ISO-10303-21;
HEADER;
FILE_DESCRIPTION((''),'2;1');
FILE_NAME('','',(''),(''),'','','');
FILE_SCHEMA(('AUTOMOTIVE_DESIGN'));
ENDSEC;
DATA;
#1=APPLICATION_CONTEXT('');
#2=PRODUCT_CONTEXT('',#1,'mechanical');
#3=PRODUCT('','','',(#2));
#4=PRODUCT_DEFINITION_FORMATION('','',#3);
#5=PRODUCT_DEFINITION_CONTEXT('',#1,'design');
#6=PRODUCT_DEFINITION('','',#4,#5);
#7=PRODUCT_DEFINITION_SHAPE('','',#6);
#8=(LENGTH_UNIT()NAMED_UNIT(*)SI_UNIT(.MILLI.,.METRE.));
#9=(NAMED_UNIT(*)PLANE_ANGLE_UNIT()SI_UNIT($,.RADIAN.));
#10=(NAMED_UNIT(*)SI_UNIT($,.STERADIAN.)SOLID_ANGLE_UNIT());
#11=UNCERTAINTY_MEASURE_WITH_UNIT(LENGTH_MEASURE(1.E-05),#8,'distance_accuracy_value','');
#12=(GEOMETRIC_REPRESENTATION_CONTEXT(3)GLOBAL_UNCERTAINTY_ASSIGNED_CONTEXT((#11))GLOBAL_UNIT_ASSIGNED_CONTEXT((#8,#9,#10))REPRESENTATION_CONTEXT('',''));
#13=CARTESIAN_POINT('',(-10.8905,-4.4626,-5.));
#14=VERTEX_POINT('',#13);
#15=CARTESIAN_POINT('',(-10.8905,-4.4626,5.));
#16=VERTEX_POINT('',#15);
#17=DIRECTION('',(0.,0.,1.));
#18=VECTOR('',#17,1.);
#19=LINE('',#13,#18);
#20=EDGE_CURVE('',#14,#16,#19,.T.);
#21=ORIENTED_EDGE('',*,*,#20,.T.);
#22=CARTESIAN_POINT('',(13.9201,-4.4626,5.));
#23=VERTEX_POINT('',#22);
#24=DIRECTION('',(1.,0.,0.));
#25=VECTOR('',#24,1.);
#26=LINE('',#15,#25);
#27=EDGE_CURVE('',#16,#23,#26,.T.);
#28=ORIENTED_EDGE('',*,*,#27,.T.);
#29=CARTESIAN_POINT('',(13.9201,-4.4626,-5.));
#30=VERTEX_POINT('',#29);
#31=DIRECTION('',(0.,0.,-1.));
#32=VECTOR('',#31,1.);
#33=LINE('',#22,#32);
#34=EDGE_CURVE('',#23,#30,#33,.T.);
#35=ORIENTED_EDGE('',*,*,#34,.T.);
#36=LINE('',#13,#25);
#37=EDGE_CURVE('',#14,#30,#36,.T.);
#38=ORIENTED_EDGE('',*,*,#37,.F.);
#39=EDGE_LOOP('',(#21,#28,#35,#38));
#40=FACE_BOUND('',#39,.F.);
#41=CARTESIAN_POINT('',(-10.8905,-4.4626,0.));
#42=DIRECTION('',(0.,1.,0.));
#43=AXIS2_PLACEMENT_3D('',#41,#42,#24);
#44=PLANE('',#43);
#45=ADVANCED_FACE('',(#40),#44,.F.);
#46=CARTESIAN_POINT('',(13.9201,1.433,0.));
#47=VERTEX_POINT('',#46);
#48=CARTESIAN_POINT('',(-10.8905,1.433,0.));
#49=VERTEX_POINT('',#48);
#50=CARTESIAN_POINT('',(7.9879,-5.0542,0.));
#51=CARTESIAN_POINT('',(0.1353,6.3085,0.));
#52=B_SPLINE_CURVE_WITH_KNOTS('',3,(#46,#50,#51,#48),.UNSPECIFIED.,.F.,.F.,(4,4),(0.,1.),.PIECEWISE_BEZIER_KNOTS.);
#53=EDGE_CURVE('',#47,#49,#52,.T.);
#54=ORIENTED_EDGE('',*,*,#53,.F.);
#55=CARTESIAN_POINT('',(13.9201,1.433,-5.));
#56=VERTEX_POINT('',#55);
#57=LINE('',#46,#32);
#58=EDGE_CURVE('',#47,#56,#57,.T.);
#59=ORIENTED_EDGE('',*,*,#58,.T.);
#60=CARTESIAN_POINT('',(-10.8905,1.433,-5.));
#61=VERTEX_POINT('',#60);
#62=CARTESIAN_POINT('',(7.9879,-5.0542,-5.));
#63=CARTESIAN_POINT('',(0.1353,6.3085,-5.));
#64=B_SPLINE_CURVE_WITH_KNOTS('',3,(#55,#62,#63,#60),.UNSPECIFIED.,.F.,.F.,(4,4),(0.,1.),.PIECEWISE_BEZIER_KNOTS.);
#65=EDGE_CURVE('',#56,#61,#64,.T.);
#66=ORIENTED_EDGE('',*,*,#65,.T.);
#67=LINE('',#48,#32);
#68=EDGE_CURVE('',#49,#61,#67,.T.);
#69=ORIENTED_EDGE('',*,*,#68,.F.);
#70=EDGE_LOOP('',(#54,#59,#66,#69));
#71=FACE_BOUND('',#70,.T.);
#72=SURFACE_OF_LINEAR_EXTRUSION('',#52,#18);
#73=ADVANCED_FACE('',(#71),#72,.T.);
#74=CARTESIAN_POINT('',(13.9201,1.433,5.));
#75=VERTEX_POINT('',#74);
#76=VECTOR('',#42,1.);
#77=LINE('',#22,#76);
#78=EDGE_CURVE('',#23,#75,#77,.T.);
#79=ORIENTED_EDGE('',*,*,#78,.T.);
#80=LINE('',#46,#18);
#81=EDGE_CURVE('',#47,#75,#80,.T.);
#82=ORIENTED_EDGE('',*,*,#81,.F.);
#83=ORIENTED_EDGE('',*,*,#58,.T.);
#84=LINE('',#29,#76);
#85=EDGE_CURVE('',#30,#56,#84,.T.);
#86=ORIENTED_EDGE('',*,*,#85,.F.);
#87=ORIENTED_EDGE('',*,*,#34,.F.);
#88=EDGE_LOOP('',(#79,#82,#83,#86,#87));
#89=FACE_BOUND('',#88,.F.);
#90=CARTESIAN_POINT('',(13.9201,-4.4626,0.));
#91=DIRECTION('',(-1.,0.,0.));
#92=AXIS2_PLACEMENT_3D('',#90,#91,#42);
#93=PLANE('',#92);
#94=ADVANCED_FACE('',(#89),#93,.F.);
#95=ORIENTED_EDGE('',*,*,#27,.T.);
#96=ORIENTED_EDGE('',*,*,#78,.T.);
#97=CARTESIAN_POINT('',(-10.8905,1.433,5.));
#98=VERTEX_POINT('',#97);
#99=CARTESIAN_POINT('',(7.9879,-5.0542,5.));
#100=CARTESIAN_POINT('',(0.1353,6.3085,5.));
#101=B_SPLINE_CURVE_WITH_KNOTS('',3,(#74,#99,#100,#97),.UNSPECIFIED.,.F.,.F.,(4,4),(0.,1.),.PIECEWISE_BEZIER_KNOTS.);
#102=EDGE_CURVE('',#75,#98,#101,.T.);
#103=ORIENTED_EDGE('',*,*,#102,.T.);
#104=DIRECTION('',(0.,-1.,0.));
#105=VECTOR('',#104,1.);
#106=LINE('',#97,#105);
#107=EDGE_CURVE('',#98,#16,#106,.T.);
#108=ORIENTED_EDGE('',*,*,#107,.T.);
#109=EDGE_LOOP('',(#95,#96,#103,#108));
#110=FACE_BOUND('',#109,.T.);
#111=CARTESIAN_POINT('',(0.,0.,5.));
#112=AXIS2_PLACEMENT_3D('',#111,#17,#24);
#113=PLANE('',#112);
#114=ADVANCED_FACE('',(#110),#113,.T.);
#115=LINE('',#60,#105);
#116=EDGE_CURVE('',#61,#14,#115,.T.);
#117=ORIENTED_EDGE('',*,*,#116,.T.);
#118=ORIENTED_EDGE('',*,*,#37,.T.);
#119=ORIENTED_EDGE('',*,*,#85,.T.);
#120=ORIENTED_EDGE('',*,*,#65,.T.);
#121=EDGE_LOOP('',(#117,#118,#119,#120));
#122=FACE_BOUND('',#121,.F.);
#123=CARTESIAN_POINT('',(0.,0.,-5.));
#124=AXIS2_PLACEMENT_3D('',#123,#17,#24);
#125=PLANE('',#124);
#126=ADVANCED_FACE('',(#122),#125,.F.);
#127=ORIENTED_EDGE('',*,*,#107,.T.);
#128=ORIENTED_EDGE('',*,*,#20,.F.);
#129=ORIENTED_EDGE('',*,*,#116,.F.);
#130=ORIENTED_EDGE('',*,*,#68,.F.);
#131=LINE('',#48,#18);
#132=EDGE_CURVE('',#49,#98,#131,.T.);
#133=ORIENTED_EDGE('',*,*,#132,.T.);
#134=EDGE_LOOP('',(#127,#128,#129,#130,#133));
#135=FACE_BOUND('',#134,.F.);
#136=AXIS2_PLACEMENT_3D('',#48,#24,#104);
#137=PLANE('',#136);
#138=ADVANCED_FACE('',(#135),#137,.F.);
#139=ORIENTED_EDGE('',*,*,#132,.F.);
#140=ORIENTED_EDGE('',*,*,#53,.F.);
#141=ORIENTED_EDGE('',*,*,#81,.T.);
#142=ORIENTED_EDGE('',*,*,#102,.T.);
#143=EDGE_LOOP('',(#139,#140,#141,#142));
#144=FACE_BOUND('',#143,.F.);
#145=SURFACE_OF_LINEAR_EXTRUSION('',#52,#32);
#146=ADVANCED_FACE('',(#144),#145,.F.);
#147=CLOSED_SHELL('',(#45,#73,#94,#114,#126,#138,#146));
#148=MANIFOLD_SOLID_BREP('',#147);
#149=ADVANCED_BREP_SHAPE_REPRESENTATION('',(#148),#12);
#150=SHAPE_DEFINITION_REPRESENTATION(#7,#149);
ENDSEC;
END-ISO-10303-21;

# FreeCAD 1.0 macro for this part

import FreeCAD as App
import Part
import Sketcher

V = App.Vector

doc = App.newDocument("Part")
body = doc.addObject("PartDesign::Body", "Body")

sketch1 = doc.addObject("Sketcher::SketchObject", "Sketch")
body.addObject(sketch1)
sketch1.AttachmentSupport = (doc.XY_Plane, [""])
sketch1.MapMode = "FlatFace"
sketch1.addGeometry([
    Part.BSplineCurve([V(13.9201, 1.433, 0), V(7.9879, -5.0542, 0), V(0.1353, 6.3085, 0), V(-10.8905, 1.433, 0)], [4, 4], [0, 1], False, 3, [1, 1, 1, 1], False),
    Part.LineSegment(V(-10.8905, 1.433, 0), V(-10.8905, -4.4626, 0)),
    Part.LineSegment(V(-10.8905, -4.4626, 0), V(13.9201, -4.4626, 0)),
    Part.LineSegment(V(13.9201, -4.4626, 0), V(13.9201, 1.433, 0)),
], False)
sketch1.addConstraint([
    Sketcher.Constraint("Block", 0),
    Sketcher.Constraint("Coincident", 0, 2, 1, 1),
    Sketcher.Constraint("Coincident", 1, 2, 2, 1),
    Sketcher.Constraint("Coincident", 2, 2, 3, 1),
    Sketcher.Constraint("Coincident", 3, 2, 0, 1),
    Sketcher.Constraint("Vertical", 1),
    Sketcher.Constraint("Horizontal", 2),
    Sketcher.Constraint("Vertical", 3),
    Sketcher.Constraint("DistanceY", 1, 2, 1, 1, 5.8956),
])
pad1 = doc.addObject("PartDesign::Pad", "Pad")
body.addObject(pad1)
pad1.Profile = sketch1
pad1.Length = 10
pad1.Midplane = True

doc.recompute()
